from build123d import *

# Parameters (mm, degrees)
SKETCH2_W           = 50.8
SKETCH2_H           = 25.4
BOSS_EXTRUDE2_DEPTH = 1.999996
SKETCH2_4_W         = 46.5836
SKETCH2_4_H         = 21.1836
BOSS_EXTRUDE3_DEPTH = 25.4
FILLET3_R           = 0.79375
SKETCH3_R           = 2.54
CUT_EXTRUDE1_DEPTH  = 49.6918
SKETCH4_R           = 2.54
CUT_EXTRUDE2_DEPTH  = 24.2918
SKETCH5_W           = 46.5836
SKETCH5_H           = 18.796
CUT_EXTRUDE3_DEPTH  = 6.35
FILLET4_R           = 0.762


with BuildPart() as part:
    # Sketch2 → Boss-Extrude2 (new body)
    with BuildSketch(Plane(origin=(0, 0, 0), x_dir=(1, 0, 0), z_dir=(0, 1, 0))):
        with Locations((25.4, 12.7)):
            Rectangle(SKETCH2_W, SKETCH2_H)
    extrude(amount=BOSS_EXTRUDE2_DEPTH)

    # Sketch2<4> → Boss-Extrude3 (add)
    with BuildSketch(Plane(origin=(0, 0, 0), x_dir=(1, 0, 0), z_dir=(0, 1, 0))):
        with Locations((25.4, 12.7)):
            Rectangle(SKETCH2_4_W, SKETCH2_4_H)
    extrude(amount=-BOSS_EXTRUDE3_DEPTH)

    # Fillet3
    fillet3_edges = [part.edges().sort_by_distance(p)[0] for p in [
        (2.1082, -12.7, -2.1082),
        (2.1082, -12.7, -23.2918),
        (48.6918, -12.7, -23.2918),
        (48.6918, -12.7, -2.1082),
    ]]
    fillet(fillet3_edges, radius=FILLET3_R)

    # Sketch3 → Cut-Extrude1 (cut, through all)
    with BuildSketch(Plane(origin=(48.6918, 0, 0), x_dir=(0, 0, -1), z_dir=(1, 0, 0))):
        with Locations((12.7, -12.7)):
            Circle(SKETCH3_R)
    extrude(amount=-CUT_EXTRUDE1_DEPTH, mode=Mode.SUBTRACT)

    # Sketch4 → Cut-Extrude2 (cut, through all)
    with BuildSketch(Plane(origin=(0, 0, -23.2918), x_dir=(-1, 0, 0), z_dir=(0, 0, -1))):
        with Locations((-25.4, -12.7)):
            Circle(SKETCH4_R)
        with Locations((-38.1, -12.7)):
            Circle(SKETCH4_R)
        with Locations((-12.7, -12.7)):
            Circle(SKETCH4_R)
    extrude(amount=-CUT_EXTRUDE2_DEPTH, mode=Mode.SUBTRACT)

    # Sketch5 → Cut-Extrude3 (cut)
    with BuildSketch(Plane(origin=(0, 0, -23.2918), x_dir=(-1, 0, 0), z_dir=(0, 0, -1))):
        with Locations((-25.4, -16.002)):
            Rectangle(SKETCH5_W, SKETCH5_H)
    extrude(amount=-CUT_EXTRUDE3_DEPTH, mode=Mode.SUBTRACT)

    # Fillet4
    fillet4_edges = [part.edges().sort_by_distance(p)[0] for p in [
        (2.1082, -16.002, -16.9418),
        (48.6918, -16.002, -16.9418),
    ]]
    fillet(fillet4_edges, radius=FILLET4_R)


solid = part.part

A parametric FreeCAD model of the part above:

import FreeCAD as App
import Part
import Sketcher
from FreeCAD import Vector
Q = App.Units.Quantity


def edges_at(feature, points):
    """Names of the edges that pass closest to the given points."""
    edges = feature.Shape.Edges
    near = lambda p: min(range(len(edges)), key=lambda i: edges[i].distToShape(Part.Vertex(*p))[0])
    return sorted({f"Edge{near(p) + 1}" for p in points})


def add_polygon(sketch, points):
    """Adds a closed chain of lines whose ends are joined by coincident constraints."""
    first, n = sketch.GeometryCount, len(points)
    for a, b in zip(points, points[1:] + points[:1]):
        sketch.addGeometry(Part.LineSegment(App.Vector(*a, 0), App.Vector(*b, 0)), False)
    for i in range(n):
        sketch.addConstraint(Sketcher.Constraint("Coincident", first + i, 2, first + (i + 1) % n, 1))

doc = App.newDocument("Part")
body = doc.addObject("PartDesign::Body", "Body")

# Sketch on XZ plane
sketch1 = body.newObject("Sketcher::SketchObject", "Sketch")
sketch1.AttachmentSupport = (doc.getObject("XZ_Plane"), [""])
sketch1.MapMode = "FlatFace"
add_polygon(sketch1, [(0, -25), (0, 0), (51, 0), (51, -25)])  # lines 0-3
sketch1.addConstraint(Sketcher.Constraint("Vertical", 0))
sketch1.addConstraint(Sketcher.Constraint("Horizontal", 1))
sketch1.addConstraint(Sketcher.Constraint("Vertical", 2))
sketch1.addConstraint(Sketcher.Constraint("Horizontal", 3))
sketch1.addConstraint(Sketcher.Constraint("Coincident", 0, 2, -1, 1))
sketch1.addConstraint(Sketcher.Constraint("DistanceX", 1, 1, 1, 2, Q("2 in")))
sketch1.addConstraint(Sketcher.Constraint("DistanceY", 0, 1, 0, 2, Q("1 in")))
pad1 = body.newObject("PartDesign::Pad", "Pad")
pad1.Profile = sketch1
pad1.Length = 1.999996
pad1.Reversed = True

# Sketch on XZ plane
sketch2 = body.newObject("Sketcher::SketchObject", "Sketch001")
sketch2.AttachmentSupport = (doc.getObject("XZ_Plane"), [""])
sketch2.MapMode = "FlatFace"
add_polygon(sketch2, [(2, -23), (2, -2), (49, -2), (49, -23)])  # lines 0-3
sketch2.addConstraint(Sketcher.Constraint("Vertical", 0))
sketch2.addConstraint(Sketcher.Constraint("Horizontal", 1))
sketch2.addConstraint(Sketcher.Constraint("Vertical", 2))
sketch2.addConstraint(Sketcher.Constraint("Horizontal", 3))
sketch2.addConstraint(Sketcher.Constraint("DistanceX", 1, 1, 1, 2, Q("1.834 in")))
sketch2.addConstraint(Sketcher.Constraint("DistanceY", 0, 1, 0, 2, Q("0.834 in")))
sketch2.addConstraint(Sketcher.Constraint("DistanceX", -1, 1, 0, 2, Q("0.083 in")))
sketch2.addConstraint(Sketcher.Constraint("DistanceY", 0, 2, -1, 1, Q("0.083 in")))
pad2 = body.newObject("PartDesign::Pad", "Pad001")
pad2.Profile = sketch2
pad2.Length = Q("1 in")
doc.recompute()

fillet = body.newObject("PartDesign::Fillet", "Fillet")
fillet.Base = (pad2, edges_at(pad2, [
    (2.108, -12.7, -2.108),
    (2.108, -12.7, -23.292),
    (48.692, -12.7, -23.292),
    (48.692, -12.7, -2.108),
]))
fillet.Radius = Q("0.03125 in")

# Sketch on YZ plane
sketch3 = body.newObject("Sketcher::SketchObject", "Sketch002")
sketch3.AttachmentSupport = (doc.getObject("YZ_Plane"), [""])
sketch3.MapMode = "FlatFace"
sketch3.AttachmentOffset = App.Placement(Vector(0, 0, 1.917 * 25.4), App.Rotation())
sketch3.addGeometry(Part.Circle(Vector(-12.7, -12.7, 0), Vector(0, 0, 1), 2.5), False)
sketch3.addConstraint(Sketcher.Constraint("Diameter", 0, Q("0.2 in")))
sketch3.addConstraint(Sketcher.Constraint("DistanceX", 0, 3, -1, 1, Q("0.5 in")))
sketch3.addConstraint(Sketcher.Constraint("DistanceY", 0, 3, -1, 1, Q("0.5 in")))
pocket1 = body.newObject("PartDesign::Pocket", "Pocket")
pocket1.Profile = sketch3
pocket1.Type = "ThroughAll"

# Sketch on XY plane
sketch4 = body.newObject("Sketcher::SketchObject", "Sketch003")
sketch4.AttachmentSupport = (doc.getObject("XY_Plane"), [""])
sketch4.MapMode = "FlatFace"
sketch4.AttachmentOffset = App.Placement(Vector(0, 0, -0.917 * 25.4), App.Rotation())
sketch4.addGeometry(Part.Circle(Vector(25.4, -12.7, 0), Vector(0, 0, 1), 2.5), False)
sketch4.addGeometry(Part.Circle(Vector(38.1, -12.7, 0), Vector(0, 0, 1), 2.5), False)
sketch4.addGeometry(Part.Circle(Vector(12.7, -12.7, 0), Vector(0, 0, 1), 2.5), False)
sketch4.addConstraint(Sketcher.Constraint("Equal", 0, 1))
sketch4.addConstraint(Sketcher.Constraint("Equal", 1, 2))
sketch4.addConstraint(Sketcher.Constraint("Horizontal", 0, 3, 1, 3))
sketch4.addConstraint(Sketcher.Constraint("Horizontal", 1, 3, 2, 3))
sketch4.addConstraint(Sketcher.Constraint("Diameter", 0, Q("0.2 in")))
sketch4.addConstraint(Sketcher.Constraint("DistanceX", -1, 1, 0, 3, Q("1 in")))
sketch4.addConstraint(Sketcher.Constraint("DistanceX", 2, 3, 1, 3, Q("1 in")))
sketch4.addConstraint(Sketcher.Constraint("DistanceY", 0, 3, -1, 1, Q("0.5 in")))
sketch4.addConstraint(Sketcher.Constraint("DistanceX", -1, 1, 1, 3, Q("1.5 in")))
pocket2 = body.newObject("PartDesign::Pocket", "Pocket001")
pocket2.Profile = sketch4
pocket2.Type = "ThroughAll"
pocket2.Reversed = True

# Sketch on XY plane
sketch5 = body.newObject("Sketcher::SketchObject", "Sketch004")
sketch5.AttachmentSupport = (doc.getObject("XY_Plane"), [""])
sketch5.MapMode = "FlatFace"
sketch5.AttachmentOffset = App.Placement(Vector(0, 0, -0.917 * 25.4), App.Rotation())
add_polygon(sketch5, [(49, -7), (49, -25), (2, -25), (2, -7)])  # lines 0-3
sketch5.addConstraint(Sketcher.Constraint("Vertical", 0))
sketch5.addConstraint(Sketcher.Constraint("Horizontal", 1))
sketch5.addConstraint(Sketcher.Constraint("Vertical", 2))
sketch5.addConstraint(Sketcher.Constraint("Horizontal", 3))
sketch5.addConstraint(Sketcher.Constraint("DistanceY", 0, 2, -1, 1, Q("1 in")))
sketch5.addConstraint(Sketcher.Constraint("DistanceY", 0, 2, 0, 1, Q("0.74 in")))
sketch5.addConstraint(Sketcher.Constraint("DistanceX", 1, 2, 1, 1, Q("1.834 in")))
sketch5.addConstraint(Sketcher.Constraint("DistanceX", -1, 1, 0, 2, Q("1.917 in")))
pocket3 = body.newObject("PartDesign::Pocket", "Pocket002")
pocket3.Profile = sketch5
pocket3.Length = Q("0.25 in")
pocket3.Reversed = True
doc.recompute()

fillet2 = body.newObject("PartDesign::Fillet", "Fillet001")
fillet2.Base = (pocket3, edges_at(pocket3, [(2.108, -16.002, -16.942), (48.692, -16.002, -16.942)]))
fillet2.Radius = Q("0.03 in")

doc.recompute()
